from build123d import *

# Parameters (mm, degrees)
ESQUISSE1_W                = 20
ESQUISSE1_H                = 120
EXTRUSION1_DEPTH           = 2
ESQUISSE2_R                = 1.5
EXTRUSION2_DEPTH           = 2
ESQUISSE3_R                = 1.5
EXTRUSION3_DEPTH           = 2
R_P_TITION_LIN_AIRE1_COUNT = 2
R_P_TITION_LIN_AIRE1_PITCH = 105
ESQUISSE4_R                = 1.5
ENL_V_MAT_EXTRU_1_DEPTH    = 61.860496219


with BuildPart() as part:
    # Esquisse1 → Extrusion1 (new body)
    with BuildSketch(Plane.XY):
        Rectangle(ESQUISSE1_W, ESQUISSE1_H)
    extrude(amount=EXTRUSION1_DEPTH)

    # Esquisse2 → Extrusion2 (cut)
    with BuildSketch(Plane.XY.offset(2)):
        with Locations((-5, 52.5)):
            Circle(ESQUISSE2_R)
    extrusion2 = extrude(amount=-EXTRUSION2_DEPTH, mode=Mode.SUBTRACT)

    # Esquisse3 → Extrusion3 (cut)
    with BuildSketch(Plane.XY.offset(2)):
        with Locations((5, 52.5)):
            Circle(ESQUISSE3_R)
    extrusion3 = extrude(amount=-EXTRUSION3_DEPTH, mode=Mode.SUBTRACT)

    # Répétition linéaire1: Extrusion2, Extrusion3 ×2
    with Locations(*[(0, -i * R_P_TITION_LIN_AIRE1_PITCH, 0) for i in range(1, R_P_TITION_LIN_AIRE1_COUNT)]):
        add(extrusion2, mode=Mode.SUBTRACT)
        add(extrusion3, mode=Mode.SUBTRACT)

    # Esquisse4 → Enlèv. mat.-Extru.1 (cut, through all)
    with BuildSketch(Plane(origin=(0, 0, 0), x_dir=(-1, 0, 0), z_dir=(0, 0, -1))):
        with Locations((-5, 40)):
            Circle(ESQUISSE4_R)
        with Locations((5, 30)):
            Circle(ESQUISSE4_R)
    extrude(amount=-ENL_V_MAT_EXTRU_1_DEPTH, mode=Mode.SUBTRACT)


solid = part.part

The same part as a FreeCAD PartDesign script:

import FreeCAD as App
import Part
import Sketcher

V = App.Vector
Q = App.Units.Quantity

doc = App.newDocument("Part")
body = doc.addObject("PartDesign::Body", "Body")

# Sketch on XY plane
sketch1 = doc.addObject("Sketcher::SketchObject", "Sketch")
body.addObject(sketch1)
sketch1.AttachmentSupport = (doc.XY_Plane, [""])
sketch1.MapMode = "FlatFace"
sketch1.addGeometry([
    Part.LineSegment(V(-10, 60, 0), V(-10, -60, 0)),
    Part.LineSegment(V(-10, -60, 0), V(10, -60, 0)),
    Part.LineSegment(V(10, -60, 0), V(10, 60, 0)),
    Part.LineSegment(V(10, 60, 0), V(-10, 60, 0)),
], False)
sketch1.addConstraint([
    Sketcher.Constraint("Coincident", 0, 2, 1, 1),
    Sketcher.Constraint("Coincident", 1, 2, 2, 1),
    Sketcher.Constraint("Coincident", 2, 2, 3, 1),
    Sketcher.Constraint("Coincident", 3, 2, 0, 1),
    Sketcher.Constraint("Vertical", 0),
    Sketcher.Constraint("Horizontal", 1),
    Sketcher.Constraint("Vertical", 2),
    Sketcher.Constraint("Horizontal", 3),
    Sketcher.Constraint("Symmetric", 0, 2, 2, 2, -1, 1),
    Sketcher.Constraint("DistanceX", 1, 1, 1, 2, Q("20 mm")),
    Sketcher.Constraint("DistanceY", 0, 2, 0, 1, Q("120 mm")),
])
pad1 = doc.addObject("PartDesign::Pad", "Pad")
body.addObject(pad1)
pad1.Profile = sketch1
pad1.Length = 2

# Sketch on XY plane
sketch2 = doc.addObject("Sketcher::SketchObject", "Sketch001")
body.addObject(sketch2)
sketch2.AttachmentSupport = (doc.XY_Plane, [""])
sketch2.MapMode = "FlatFace"
sketch2.AttachmentOffset = App.Placement(V(0, 0, 2), App.Rotation())
sketch2.addGeometry(Part.Circle(V(-5, 52.5, 0), V(0, 0, 1), 1.5), False)
sketch2.addConstraint([
    Sketcher.Constraint("Diameter", 0, Q("3 mm")),
    Sketcher.Constraint("DistanceX", 0, 3, -1, 1, Q("5 mm")),
    Sketcher.Constraint("DistanceY", -1, 1, 0, 3, Q("52.5 mm")),
])
pocket1 = doc.addObject("PartDesign::Pocket", "Pocket")
body.addObject(pocket1)
pocket1.Profile = sketch2
pocket1.Length = 2

# Sketch on XY plane
sketch3 = doc.addObject("Sketcher::SketchObject", "Sketch002")
body.addObject(sketch3)
sketch3.AttachmentSupport = (doc.XY_Plane, [""])
sketch3.MapMode = "FlatFace"
sketch3.AttachmentOffset = App.Placement(V(0, 0, 2), App.Rotation())
sketch3.addGeometry(Part.Circle(V(5, 52.5, 0), V(0, 0, 1), 1.5), False)
sketch3.addConstraint([
    Sketcher.Constraint("Diameter", 0, Q("3 mm")),
    Sketcher.Constraint("DistanceX", -1, 1, 0, 3, Q("5 mm")),
    Sketcher.Constraint("DistanceY", -1, 1, 0, 3, Q("52.5 mm")),
])
pocket2 = doc.addObject("PartDesign::Pocket", "Pocket001")
body.addObject(pocket2)
pocket2.Profile = sketch3
pocket2.Length = 2
doc.recompute()

linearpattern = doc.addObject("PartDesign::LinearPattern", "LinearPattern")
body.addObject(linearpattern)
linearpattern.Originals = [pocket1, pocket2]
linearpattern.Direction = (doc.Y_Axis, [""])
linearpattern.Mode = "offset"
linearpattern.Offset = 105
linearpattern.Occurrences = 2
linearpattern.Reversed = True
body.Tip = linearpattern

# Sketch on XY plane
sketch4 = doc.addObject("Sketcher::SketchObject", "Sketch003")
body.addObject(sketch4)
sketch4.AttachmentSupport = (doc.XY_Plane, [""])
sketch4.MapMode = "FlatFace"
sketch4.addGeometry([
    Part.Circle(V(5, 40, 0), V(0, 0, 1), 1.5),
    Part.Circle(V(-5, 30, 0), V(0, 0, 1), 1.5),
], False)
sketch4.addConstraint([
    Sketcher.Constraint("Equal", 0, 1),
    Sketcher.Constraint("Diameter", 0, Q("3 mm")),
    Sketcher.Constraint("DistanceX", -1, 1, 0, 3, Q("5 mm")),
    Sketcher.Constraint("DistanceY", -1, 1, 0, 3, Q("40 mm")),
    Sketcher.Constraint("DistanceX", 1, 3, -1, 1, Q("5 mm")),
    Sketcher.Constraint("DistanceY", -1, 1, 1, 3, Q("30 mm")),
])
pocket3 = doc.addObject("PartDesign::Pocket", "Pocket002")
body.addObject(pocket3)
pocket3.Profile = sketch4
pocket3.Type = "ThroughAll"
pocket3.Reversed = True

doc.recompute()
